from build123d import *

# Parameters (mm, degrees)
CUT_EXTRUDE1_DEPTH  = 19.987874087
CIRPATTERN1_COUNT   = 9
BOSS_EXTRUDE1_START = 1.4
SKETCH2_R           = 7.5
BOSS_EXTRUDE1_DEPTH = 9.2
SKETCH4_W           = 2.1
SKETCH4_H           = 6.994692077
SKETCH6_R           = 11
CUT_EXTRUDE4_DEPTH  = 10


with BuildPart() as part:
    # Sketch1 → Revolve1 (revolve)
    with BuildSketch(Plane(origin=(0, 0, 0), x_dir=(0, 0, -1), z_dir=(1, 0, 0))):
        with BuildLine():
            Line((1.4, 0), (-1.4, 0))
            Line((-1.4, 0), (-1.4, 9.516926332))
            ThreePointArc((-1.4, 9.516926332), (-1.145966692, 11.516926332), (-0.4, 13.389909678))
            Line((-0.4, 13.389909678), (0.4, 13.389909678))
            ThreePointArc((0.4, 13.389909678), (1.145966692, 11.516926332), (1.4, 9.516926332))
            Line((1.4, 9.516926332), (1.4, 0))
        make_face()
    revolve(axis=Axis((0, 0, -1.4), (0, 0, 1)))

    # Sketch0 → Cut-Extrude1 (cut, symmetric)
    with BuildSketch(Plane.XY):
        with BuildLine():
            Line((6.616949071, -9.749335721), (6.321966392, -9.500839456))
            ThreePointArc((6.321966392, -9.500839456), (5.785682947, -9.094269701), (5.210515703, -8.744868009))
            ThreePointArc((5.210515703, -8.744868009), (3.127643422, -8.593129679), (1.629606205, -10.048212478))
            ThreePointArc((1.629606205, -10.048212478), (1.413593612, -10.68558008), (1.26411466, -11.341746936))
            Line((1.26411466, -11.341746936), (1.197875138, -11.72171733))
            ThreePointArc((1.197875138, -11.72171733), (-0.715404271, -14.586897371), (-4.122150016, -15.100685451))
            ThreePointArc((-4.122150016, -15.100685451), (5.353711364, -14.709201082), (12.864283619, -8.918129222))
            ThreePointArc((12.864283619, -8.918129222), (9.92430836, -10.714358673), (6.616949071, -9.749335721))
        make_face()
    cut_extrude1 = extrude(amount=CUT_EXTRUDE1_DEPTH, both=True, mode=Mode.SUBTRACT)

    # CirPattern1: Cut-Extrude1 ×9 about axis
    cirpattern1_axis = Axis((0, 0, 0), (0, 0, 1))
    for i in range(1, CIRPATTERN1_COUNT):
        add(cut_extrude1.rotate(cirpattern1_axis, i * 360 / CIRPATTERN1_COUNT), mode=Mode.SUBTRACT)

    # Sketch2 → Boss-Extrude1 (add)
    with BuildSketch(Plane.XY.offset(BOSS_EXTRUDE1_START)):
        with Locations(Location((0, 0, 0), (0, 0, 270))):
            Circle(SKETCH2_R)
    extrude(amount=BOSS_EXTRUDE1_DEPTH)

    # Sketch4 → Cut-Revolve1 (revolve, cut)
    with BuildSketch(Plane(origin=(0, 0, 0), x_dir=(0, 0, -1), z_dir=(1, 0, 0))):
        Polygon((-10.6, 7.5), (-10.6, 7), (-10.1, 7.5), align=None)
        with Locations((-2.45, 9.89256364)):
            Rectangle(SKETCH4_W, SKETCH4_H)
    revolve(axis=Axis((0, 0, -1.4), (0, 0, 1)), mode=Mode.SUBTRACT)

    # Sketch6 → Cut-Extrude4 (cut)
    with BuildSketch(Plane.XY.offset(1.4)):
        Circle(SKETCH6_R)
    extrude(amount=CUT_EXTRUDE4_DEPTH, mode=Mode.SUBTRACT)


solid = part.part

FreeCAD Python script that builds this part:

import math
import FreeCAD as App
import Part
import Sketcher

doc = App.newDocument("Part")
body = doc.addObject("PartDesign::Body", "Body")

# Sketch on YZ plane
sketch1 = doc.addObject("Sketcher::SketchObject", "Sketch")
body.addObject(sketch1)
sketch1.AttachmentSupport = (doc.YZ_Plane, [""])
sketch1.MapMode = "FlatFace"
sketch1.addGeometry([
    Part.LineSegment(App.Vector(0, 1.4, 0), App.Vector(0, -1.4, 0)),  # 0
    Part.LineSegment(App.Vector(0, -1.4, 0), App.Vector(9.5, -1.4, 0)),  # 1
    Part.ArcOfCircle(Part.Circle(App.Vector(9.5, 6.6, 0), App.Vector(0, 0, 1), 8), math.radians(-90), math.radians(-61)),  # 2
    Part.LineSegment(App.Vector(13.4, -0.4, 0), App.Vector(13.4, 0.4, 0)),  # 3
    Part.ArcOfCircle(Part.Circle(App.Vector(9.5, -6.6, 0), App.Vector(0, 0, 1), 8), math.radians(61), math.radians(90)),  # 4
    Part.LineSegment(App.Vector(9.5, 1.4, 0), App.Vector(0, 1.4, 0)),  # 5
], False)
sketch1.addConstraint([
    Sketcher.Constraint("Coincident", 0, 2, 1, 1),
    Sketcher.Constraint("Tangent", 1, 2, 2, 1),
    Sketcher.Constraint("Coincident", 2, 2, 3, 1),
    Sketcher.Constraint("Coincident", 3, 2, 4, 1),
    Sketcher.Constraint("Tangent", 4, 2, 5, 1),
    Sketcher.Constraint("Coincident", 5, 2, 0, 1),
    Sketcher.Constraint("Vertical", 0),
    Sketcher.Constraint("Horizontal", 1),
    Sketcher.Constraint("Vertical", 3),
    Sketcher.Constraint("Horizontal", 5),
    Sketcher.Constraint("Equal", 2, 4),
    Sketcher.Constraint("Symmetric", 0, 2, 5, 2, -1, 1),
    Sketcher.Constraint("Vertical", 2, 3, 4, 3),
    Sketcher.Constraint("Radius", 2, 8.0),
    Sketcher.Constraint("DistanceY", 0, 2, 0, 1, 2.8),
    Sketcher.Constraint("DistanceY", 3, 1, 3, 2, 0.8),
    Sketcher.Constraint("DistanceX", 1, 1, 1, 2, 9.516926),
])
revolution = doc.addObject("PartDesign::Revolution", "Revolution")
body.addObject(revolution)
revolution.Profile = sketch1
revolution.ReferenceAxis = (sketch1, ["V_Axis"])
revolution.Angle = 360

# Sketch on XY plane
sketch2 = doc.addObject("Sketcher::SketchObject", "Sketch001")
body.addObject(sketch2)
sketch2.AttachmentSupport = (doc.XY_Plane, [""])
sketch2.MapMode = "FlatFace"
sketch2.addGeometry([
    Part.LineSegment(App.Vector(6.62, -9.75, 0), App.Vector(6.32, -9.5, 0)),  # 0
    Part.ArcOfCircle(Part.Circle(App.Vector(2.1, -14.51, 0), App.Vector(0, 0, 1), 6.55), math.radians(49.89), math.radians(61.67)),  # 1
    Part.ArcOfCircle(Part.Circle(App.Vector(4, -10.99, 0), App.Vector(0, 0, 1), 2.55), math.radians(62), math.radians(158)),  # 2
    Part.ArcOfCircle(Part.Circle(App.Vector(7.72, -12.47, 0), App.Vector(0, 0, 1), 6.55), math.radians(158.33), math.radians(170.11)),  # 3
    Part.LineSegment(App.Vector(1.26, -11.34, 0), App.Vector(1.2, -11.72, 0)),  # 4
    Part.ArcOfCircle(Part.Circle(App.Vector(-3, -10.99, 0), App.Vector(0, 0, 1), 4.26), math.radians(-105), math.radians(-10)),  # 5
    Part.ArcOfCircle(Part.Circle(App.Vector(0, 0, 0), App.Vector(0, 0, 1), 15.65), math.radians(-105), math.radians(-35)),  # 6
    Part.ArcOfCircle(Part.Circle(App.Vector(9.36, -6.49, 0), App.Vector(0, 0, 1), 4.26), math.radians(-130), math.radians(-35)),  # 7
], False)
sketch2.addConstraint([
    Sketcher.Constraint("Tangent", 0, 2, 1, 1),
    Sketcher.Constraint("Tangent", 1, 2, 2, 1),
    Sketcher.Constraint("Tangent", 2, 2, 3, 1),
    Sketcher.Constraint("Tangent", 3, 2, 4, 1),
    Sketcher.Constraint("Tangent", 4, 2, 5, 2),
    Sketcher.Constraint("Tangent", 5, 1, 6, 1),
    Sketcher.Constraint("Tangent", 6, 2, 7, 2),
    Sketcher.Constraint("Tangent", 7, 1, 0, 1),
    Sketcher.Constraint("Coincident", 6, 3, -1, 1),
    Sketcher.Constraint("Equal", 1, 3),
    Sketcher.Constraint("Equal", 5, 7),
    Sketcher.Constraint("Horizontal", 2, 3, 5, 3),
    Sketcher.Constraint("Equal", 0, 4),
    Sketcher.Constraint("DistanceX", -1, 1, 2, 3, 4.0),
    Sketcher.Constraint("DistanceX", 5, 3, -1, 1, 3.0),
    Sketcher.Constraint("Radius", 1, 6.5506),
    Sketcher.Constraint("Radius", 2, 2.5506),
    Sketcher.Constraint("Radius", 5, 4.261185),
    Sketcher.Constraint("Radius", 6, 15.653205),
    Sketcher.Constraint("Distance", 0, 0.385701),
    Sketcher.Constraint("DistanceX", -1, 1, 1, 3, 2.101599),
])
pocket1 = doc.addObject("PartDesign::Pocket", "Pocket")
body.addObject(pocket1)
pocket1.Profile = sketch2
pocket1.Length = 39.975748
pocket1.Midplane = True
doc.recompute()

polarpattern = doc.addObject("PartDesign::PolarPattern", "PolarPattern")
body.addObject(polarpattern)
polarpattern.Originals = [pocket1]
polarpattern.Axis = (doc.Z_Axis, [""])
polarpattern.Angle = 360
polarpattern.Occurrences = 9
body.Tip = polarpattern

# Sketch on XY plane
sketch3 = doc.addObject("Sketcher::SketchObject", "Sketch002")
body.addObject(sketch3)
sketch3.AttachmentSupport = (doc.XY_Plane, [""])
sketch3.MapMode = "FlatFace"
sketch3.AttachmentOffset = App.Placement(App.Vector(0, 0, 1.4), App.Rotation())
sketch3.addGeometry(Part.Circle(App.Vector(0, 0, 0), App.Vector(0, 0, 1), 8), False)
sketch3.addConstraint([
    Sketcher.Constraint("Coincident", 0, 3, -1, 1),
    Sketcher.Constraint("Diameter", 0, 15.0),
])
pad1 = doc.addObject("PartDesign::Pad", "Pad")
body.addObject(pad1)
pad1.Profile = sketch3
pad1.Length = 9.2

# Sketch on YZ plane
sketch4 = doc.addObject("Sketcher::SketchObject", "Sketch003")
body.addObject(sketch4)
sketch4.AttachmentSupport = (doc.YZ_Plane, [""])
sketch4.MapMode = "FlatFace"
sketch4.addGeometry([
    Part.LineSegment(App.Vector(7.5, 10.6, 0), App.Vector(7, 10.6, 0)),  # 0
    Part.LineSegment(App.Vector(7, 10.6, 0), App.Vector(7.5, 10.1, 0)),  # 1
    Part.LineSegment(App.Vector(7.5, 10.1, 0), App.Vector(7.5, 10.6, 0)),  # 2
    Part.LineSegment(App.Vector(13.4, 3.5, 0), App.Vector(6.4, 3.5, 0)),  # 3
    Part.LineSegment(App.Vector(6.4, 3.5, 0), App.Vector(6.4, 1.4, 0)),  # 4
    Part.LineSegment(App.Vector(6.4, 1.4, 0), App.Vector(13.4, 1.4, 0)),  # 5
    Part.LineSegment(App.Vector(13.4, 1.4, 0), App.Vector(13.4, 3.5, 0)),  # 6
], False)
sketch4.addConstraint([
    Sketcher.Constraint("Coincident", 0, 2, 1, 1),
    Sketcher.Constraint("Coincident", 1, 2, 2, 1),
    Sketcher.Constraint("Coincident", 2, 2, 0, 1),
    Sketcher.Constraint("Coincident", 3, 2, 4, 1),
    Sketcher.Constraint("Coincident", 4, 2, 5, 1),
    Sketcher.Constraint("Coincident", 5, 2, 6, 1),
    Sketcher.Constraint("Coincident", 6, 2, 3, 1),
    Sketcher.Constraint("Horizontal", 0),
    Sketcher.Constraint("Vertical", 2),
    Sketcher.Constraint("Horizontal", 3),
    Sketcher.Constraint("Vertical", 4),
    Sketcher.Constraint("Horizontal", 5),
    Sketcher.Constraint("Vertical", 6),
    Sketcher.Constraint("Equal", 0, 2),
    Sketcher.Constraint("DistanceX", 0, 2, 0, 1, 0.5),
    Sketcher.Constraint("DistanceY", 4, 2, 4, 1, 2.1),
    Sketcher.Constraint("DistanceX", -1, 1, 0, 2, 7.0),
    Sketcher.Constraint("DistanceY", -1, 1, 0, 2, 10.6),
    Sketcher.Constraint("DistanceY", -1, 1, 3, 2, 3.5),
    Sketcher.Constraint("DistanceX", 3, 2, 3, 1, 6.994692),
    Sketcher.Constraint("DistanceX", -1, 1, 5, 2, 13.38991),
])
groove = doc.addObject("PartDesign::Groove", "Groove")
body.addObject(groove)
groove.Profile = sketch4
groove.ReferenceAxis = (sketch4, ["V_Axis"])
groove.Angle = 360

# Sketch on XY plane
sketch5 = doc.addObject("Sketcher::SketchObject", "Sketch004")
body.addObject(sketch5)
sketch5.AttachmentSupport = (doc.XY_Plane, [""])
sketch5.MapMode = "FlatFace"
sketch5.AttachmentOffset = App.Placement(App.Vector(0, 0, 1.4), App.Rotation())
sketch5.addGeometry(Part.Circle(App.Vector(0, 0, 0), App.Vector(0, 0, 1), 11), False)
sketch5.addConstraint([
    Sketcher.Constraint("Coincident", 0, 3, -1, 1),
    Sketcher.Constraint("Diameter", 0, 22.0),
])
pocket2 = doc.addObject("PartDesign::Pocket", "Pocket001")
body.addObject(pocket2)
pocket2.Profile = sketch5
pocket2.Length = 10
pocket2.Reversed = True

doc.recompute()
